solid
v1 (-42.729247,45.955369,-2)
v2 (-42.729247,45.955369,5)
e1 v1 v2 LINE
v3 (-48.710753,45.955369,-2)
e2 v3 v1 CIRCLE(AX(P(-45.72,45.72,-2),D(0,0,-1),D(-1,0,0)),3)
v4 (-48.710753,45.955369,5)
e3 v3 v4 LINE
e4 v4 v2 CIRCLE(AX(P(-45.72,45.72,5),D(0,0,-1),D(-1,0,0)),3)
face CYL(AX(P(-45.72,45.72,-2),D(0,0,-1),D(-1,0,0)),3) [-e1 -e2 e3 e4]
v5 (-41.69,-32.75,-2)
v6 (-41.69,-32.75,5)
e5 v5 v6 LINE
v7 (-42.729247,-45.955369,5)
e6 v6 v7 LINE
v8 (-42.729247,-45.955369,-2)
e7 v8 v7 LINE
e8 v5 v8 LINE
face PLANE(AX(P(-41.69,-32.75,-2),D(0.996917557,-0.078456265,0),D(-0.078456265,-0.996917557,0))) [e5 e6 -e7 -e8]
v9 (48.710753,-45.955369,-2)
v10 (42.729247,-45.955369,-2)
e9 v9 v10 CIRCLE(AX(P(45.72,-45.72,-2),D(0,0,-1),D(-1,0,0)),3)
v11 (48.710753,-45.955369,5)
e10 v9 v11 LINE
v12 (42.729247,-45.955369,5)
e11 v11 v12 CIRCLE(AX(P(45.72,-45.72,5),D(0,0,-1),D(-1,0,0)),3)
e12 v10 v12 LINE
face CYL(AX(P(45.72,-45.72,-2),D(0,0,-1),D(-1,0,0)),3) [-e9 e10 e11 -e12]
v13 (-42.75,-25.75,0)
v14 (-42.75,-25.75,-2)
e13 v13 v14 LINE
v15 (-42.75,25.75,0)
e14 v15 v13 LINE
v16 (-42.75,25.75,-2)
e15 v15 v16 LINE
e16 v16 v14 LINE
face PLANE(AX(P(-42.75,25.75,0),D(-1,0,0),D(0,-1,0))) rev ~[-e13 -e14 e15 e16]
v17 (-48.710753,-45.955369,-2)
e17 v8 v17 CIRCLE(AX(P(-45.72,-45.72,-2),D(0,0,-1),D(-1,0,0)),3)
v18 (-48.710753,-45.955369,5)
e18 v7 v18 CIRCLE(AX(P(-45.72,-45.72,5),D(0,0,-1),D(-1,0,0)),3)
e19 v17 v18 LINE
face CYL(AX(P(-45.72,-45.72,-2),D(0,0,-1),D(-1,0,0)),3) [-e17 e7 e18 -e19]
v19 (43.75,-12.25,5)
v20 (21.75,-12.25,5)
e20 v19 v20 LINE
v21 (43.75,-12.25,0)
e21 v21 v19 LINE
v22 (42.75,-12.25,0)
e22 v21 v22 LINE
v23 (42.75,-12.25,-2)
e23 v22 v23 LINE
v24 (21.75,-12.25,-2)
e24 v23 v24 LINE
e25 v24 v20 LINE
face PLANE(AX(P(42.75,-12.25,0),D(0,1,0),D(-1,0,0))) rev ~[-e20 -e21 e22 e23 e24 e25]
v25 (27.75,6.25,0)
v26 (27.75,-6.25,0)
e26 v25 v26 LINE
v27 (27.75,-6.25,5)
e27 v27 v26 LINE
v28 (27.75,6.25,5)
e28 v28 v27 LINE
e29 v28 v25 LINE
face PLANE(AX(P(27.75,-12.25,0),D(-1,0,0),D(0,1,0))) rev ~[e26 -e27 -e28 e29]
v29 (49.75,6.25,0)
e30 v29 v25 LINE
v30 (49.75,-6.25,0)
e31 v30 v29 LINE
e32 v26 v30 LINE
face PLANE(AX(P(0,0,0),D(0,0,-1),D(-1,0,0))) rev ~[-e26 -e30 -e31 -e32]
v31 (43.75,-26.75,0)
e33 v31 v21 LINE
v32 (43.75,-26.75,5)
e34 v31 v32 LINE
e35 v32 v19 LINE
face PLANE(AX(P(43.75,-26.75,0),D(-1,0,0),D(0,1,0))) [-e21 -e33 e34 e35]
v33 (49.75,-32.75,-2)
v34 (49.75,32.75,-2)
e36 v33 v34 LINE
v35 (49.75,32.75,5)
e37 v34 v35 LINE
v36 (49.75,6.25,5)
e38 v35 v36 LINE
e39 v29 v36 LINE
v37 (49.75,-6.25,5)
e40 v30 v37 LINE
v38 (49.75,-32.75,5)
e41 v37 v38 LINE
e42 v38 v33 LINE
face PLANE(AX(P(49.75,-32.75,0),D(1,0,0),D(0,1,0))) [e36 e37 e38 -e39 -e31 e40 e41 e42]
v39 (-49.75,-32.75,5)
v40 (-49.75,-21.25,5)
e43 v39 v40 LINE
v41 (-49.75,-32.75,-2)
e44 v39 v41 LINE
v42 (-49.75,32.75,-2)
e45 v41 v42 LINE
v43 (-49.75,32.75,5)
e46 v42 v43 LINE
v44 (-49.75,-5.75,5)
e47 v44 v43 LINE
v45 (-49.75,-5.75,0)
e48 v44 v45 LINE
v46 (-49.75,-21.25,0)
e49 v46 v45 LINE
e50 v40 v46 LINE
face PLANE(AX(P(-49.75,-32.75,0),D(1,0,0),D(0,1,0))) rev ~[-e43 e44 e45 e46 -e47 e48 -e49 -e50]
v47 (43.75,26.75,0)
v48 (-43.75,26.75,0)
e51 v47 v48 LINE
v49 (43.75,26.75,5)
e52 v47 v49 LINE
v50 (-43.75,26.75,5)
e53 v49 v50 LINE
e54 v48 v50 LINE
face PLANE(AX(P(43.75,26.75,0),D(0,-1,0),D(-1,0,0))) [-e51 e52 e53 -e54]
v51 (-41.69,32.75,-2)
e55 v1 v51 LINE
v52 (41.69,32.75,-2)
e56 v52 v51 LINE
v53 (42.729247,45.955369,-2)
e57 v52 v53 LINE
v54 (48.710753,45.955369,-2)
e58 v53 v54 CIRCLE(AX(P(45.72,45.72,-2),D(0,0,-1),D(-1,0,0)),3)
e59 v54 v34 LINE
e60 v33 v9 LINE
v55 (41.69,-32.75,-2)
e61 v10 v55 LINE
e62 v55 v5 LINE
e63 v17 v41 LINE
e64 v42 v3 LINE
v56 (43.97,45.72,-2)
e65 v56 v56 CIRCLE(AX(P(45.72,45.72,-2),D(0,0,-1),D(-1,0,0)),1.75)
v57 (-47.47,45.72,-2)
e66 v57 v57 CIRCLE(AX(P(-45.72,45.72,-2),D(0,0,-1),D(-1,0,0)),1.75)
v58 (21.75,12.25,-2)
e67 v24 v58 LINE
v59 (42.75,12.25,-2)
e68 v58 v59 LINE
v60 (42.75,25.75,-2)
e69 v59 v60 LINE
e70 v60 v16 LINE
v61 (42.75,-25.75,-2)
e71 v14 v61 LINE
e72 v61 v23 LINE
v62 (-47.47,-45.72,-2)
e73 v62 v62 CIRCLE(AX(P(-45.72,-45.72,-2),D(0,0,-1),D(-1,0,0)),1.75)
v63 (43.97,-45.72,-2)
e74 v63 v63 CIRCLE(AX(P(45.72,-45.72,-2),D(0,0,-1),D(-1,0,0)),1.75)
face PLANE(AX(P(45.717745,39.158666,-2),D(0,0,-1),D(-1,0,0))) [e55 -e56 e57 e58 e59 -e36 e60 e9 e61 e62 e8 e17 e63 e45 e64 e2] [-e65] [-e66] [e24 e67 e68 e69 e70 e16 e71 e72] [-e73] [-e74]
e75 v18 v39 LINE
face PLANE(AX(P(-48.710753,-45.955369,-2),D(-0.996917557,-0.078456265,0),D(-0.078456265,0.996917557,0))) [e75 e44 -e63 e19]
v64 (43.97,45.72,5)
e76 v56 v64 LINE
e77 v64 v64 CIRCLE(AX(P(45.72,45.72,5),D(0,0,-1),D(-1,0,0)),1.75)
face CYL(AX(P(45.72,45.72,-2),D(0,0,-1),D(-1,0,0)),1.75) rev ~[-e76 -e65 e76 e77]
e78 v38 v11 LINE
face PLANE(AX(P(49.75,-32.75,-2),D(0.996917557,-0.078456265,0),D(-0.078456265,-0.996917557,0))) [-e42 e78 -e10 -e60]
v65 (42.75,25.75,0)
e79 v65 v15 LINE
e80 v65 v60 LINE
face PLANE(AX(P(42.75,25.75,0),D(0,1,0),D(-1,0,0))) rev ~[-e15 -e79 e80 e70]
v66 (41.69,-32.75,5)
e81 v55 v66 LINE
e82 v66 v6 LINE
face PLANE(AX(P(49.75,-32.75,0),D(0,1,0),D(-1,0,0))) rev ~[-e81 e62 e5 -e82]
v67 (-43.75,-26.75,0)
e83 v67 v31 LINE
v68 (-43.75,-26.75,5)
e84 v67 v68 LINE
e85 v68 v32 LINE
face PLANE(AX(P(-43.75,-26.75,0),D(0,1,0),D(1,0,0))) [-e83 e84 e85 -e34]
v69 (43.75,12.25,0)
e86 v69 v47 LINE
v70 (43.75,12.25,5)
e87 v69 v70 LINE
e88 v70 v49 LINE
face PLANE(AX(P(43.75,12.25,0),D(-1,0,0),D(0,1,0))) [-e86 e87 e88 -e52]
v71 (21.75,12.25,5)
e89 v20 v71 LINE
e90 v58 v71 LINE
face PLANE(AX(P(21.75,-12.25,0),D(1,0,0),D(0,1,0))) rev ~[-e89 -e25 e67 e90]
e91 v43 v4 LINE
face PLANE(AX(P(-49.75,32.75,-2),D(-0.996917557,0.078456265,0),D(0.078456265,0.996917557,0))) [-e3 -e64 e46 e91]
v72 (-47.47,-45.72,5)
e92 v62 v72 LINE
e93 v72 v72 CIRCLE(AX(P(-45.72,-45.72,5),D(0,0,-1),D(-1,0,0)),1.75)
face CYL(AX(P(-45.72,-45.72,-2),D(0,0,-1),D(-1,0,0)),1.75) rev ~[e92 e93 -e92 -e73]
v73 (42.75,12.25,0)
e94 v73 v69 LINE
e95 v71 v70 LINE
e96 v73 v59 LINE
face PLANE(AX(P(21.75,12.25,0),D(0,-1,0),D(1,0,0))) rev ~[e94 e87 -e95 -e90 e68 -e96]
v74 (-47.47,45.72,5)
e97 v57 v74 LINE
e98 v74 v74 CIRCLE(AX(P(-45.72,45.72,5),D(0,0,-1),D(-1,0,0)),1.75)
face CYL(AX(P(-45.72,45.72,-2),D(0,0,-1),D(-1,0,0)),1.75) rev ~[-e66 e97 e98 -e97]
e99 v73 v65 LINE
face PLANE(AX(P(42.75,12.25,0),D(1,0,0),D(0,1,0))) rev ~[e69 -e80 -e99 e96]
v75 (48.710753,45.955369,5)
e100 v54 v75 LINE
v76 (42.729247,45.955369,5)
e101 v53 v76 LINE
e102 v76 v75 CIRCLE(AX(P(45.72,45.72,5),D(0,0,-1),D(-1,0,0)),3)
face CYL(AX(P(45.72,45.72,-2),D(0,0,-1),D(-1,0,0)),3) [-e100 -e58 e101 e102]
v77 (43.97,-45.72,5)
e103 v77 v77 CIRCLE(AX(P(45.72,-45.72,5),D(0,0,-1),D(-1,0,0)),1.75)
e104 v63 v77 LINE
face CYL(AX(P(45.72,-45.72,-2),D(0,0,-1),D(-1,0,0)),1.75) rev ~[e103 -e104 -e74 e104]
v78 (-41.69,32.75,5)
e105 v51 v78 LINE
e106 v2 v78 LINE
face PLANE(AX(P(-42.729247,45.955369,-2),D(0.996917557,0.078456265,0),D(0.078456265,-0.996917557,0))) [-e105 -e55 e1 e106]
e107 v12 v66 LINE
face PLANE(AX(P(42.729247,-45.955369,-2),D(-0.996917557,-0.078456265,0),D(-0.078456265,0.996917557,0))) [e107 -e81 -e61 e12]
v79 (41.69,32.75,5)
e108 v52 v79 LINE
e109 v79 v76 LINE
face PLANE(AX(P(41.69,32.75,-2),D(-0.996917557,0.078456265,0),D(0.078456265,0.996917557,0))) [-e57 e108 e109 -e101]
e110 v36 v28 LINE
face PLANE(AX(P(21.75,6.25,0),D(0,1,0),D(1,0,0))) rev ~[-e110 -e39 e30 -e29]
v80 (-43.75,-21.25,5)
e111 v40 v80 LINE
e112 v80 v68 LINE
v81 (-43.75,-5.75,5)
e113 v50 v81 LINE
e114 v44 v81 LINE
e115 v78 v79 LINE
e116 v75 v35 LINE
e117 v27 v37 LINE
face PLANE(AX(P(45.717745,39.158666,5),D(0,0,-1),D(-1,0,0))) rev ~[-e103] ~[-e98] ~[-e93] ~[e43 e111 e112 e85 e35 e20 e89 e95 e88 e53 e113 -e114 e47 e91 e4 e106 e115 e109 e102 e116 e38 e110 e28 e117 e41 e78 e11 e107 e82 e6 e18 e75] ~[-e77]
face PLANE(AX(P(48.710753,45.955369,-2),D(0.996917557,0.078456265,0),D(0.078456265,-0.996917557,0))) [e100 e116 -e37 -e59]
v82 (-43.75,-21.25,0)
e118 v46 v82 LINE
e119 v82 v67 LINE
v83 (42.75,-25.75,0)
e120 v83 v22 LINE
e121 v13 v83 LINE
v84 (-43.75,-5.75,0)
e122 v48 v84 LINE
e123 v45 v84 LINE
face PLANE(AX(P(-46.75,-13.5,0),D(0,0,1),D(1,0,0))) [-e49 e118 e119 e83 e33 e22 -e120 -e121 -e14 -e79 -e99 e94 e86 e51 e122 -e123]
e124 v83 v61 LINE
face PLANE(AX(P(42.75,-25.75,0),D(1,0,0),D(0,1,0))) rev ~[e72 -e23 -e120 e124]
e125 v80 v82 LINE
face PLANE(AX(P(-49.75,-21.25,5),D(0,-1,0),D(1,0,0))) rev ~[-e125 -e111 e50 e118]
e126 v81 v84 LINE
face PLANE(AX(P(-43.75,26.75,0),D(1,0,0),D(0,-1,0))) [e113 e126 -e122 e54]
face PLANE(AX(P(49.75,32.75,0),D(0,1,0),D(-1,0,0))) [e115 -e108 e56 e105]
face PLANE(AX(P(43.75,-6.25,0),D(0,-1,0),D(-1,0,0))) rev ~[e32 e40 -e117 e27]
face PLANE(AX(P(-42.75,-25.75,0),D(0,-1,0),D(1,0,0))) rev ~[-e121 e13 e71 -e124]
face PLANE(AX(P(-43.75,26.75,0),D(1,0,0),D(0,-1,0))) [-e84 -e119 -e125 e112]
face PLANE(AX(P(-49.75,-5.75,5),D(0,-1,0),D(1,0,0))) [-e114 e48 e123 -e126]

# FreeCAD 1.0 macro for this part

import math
import FreeCAD as App
import Part
import Sketcher

V = App.Vector


def faces_at(feature, points):
    """Names of the faces that lie closest to the given points."""
    faces = feature.Shape.Faces
    near = lambda p: min(range(len(faces)), key=lambda i: faces[i].distToShape(Part.Vertex(*p))[0])
    return sorted({f"Face{near(p) + 1}" for p in points})


def add_polygon(sketch, points):
    """Adds a closed chain of lines whose ends are joined by coincident constraints."""
    first, n = sketch.GeometryCount, len(points)
    for a, b in zip(points, points[1:] + points[:1]):
        sketch.addGeometry(Part.LineSegment(App.Vector(*a, 0), App.Vector(*b, 0)), False)
    for i in range(n):
        sketch.addConstraint(Sketcher.Constraint("Coincident", first + i, 2, first + (i + 1) % n, 1))

doc = App.newDocument("Part")
body = doc.addObject("PartDesign::Body", "Body")

# Sketch on XY plane
sketch1 = body.newObject("Sketcher::SketchObject", "Sketch")
sketch1.AttachmentSupport = (doc.getObject("XY_Plane"), [""])
sketch1.MapMode = "FlatFace"
add_polygon(sketch1, [(44, 27), (-44, 27), (-44, -27), (44, -27), (44, -12), (22, -12), (22, 12), (44, 12)])  # lines 0-7
sketch1.addConstraint([
    Sketcher.Constraint("Horizontal", 0),
    Sketcher.Constraint("Vertical", 1),
    Sketcher.Constraint("Horizontal", 2),
    Sketcher.Constraint("Vertical", 3),
    Sketcher.Constraint("Horizontal", 4),
    Sketcher.Constraint("Vertical", 5),
    Sketcher.Constraint("Horizontal", 6),
    Sketcher.Constraint("Vertical", 7),
    Sketcher.Constraint("Symmetric", 0, 2, 2, 2, -1, 1),
    Sketcher.Constraint("Symmetric", 3, 2, 6, 2, -1),
    Sketcher.Constraint("DistanceX", 4, 2, 4, 1, 22.0),
    Sketcher.Constraint("DistanceX", 0, 2, 0, 1, 87.5),
    Sketcher.Constraint("DistanceY", 1, 2, 1, 1, 53.5),
    Sketcher.Constraint("DistanceY", 3, 1, 3, 2, 14.5),
])
pad1 = body.newObject("PartDesign::Pad", "Pad")
pad1.Profile = sketch1
pad1.Length = 5
doc.recompute()

thickness = body.newObject("PartDesign::Thickness", "Thickness")
thickness.Base = (pad1, faces_at(pad1, [(0, 0, 0), (0, 0, 5)]))
thickness.Value = 6
thickness.Reversed = False
thickness.Join = "Intersection"

# Sketch on XY plane
sketch2 = body.newObject("Sketcher::SketchObject", "Sketch001")
sketch2.AttachmentSupport = (doc.getObject("XY_Plane"), [""])
sketch2.MapMode = "FlatFace"
add_polygon(sketch2, [(50, 33), (50, -33), (-50, -33), (-50, 33)])  # lines 0-3
add_polygon(sketch2, [(22, 12), (43, 12), (43, 26), (-43, 26), (-43, -26), (43, -26), (43, -12), (22, -12)])  # lines 4-11
sketch2.addConstraint([
    Sketcher.Constraint("Vertical", 0),
    Sketcher.Constraint("Horizontal", 1),
    Sketcher.Constraint("Vertical", 2),
    Sketcher.Constraint("Horizontal", 3),
    Sketcher.Constraint("Horizontal", 4),
    Sketcher.Constraint("Vertical", 5),
    Sketcher.Constraint("Horizontal", 6),
    Sketcher.Constraint("Vertical", 7),
    Sketcher.Constraint("Horizontal", 8),
    Sketcher.Constraint("Vertical", 9),
    Sketcher.Constraint("Horizontal", 10),
    Sketcher.Constraint("Vertical", 11),
    Sketcher.Constraint("Symmetric", 0, 2, 2, 2, -1, 1),
    Sketcher.Constraint("Symmetric", 5, 2, 7, 2, -1, 1),
    Sketcher.Constraint("Symmetric", 4, 2, 9, 2, -1),
    Sketcher.Constraint("DistanceX", 4, 1, 4, 2, 21.0),
    Sketcher.Constraint("DistanceX", 1, 2, 1, 1, 99.5),
    Sketcher.Constraint("DistanceX", 6, 2, 6, 1, 85.5),
    Sketcher.Constraint("DistanceY", 0, 2, 0, 1, 65.5),
    Sketcher.Constraint("DistanceY", 5, 1, 5, 2, 13.5),
    Sketcher.Constraint("DistanceY", 7, 2, 7, 1, 51.5),
])
pad2 = body.newObject("PartDesign::Pad", "Pad001")
pad2.Profile = sketch2
pad2.Length = 2
pad2.Reversed = True

# Sketch on XY plane
sketch3 = body.newObject("Sketcher::SketchObject", "Sketch002")
sketch3.AttachmentSupport = (doc.getObject("XY_Plane"), [""])
sketch3.MapMode = "FlatFace"
sketch3.AttachmentOffset = App.Placement(V(0, 0, 5), App.Rotation())
add_polygon(sketch3, [(-50, -6), (-50, -21), (-44, -21), (-44, -6)])  # lines 0-3
sketch3.addConstraint([
    Sketcher.Constraint("Vertical", 0),
    Sketcher.Constraint("Horizontal", 1),
    Sketcher.Constraint("Vertical", 2),
    Sketcher.Constraint("Horizontal", 3),
    Sketcher.Constraint("DistanceX", 1, 1, 1, 2, 6.0),
    Sketcher.Constraint("DistanceY", 0, 2, 0, 1, 15.5),
    Sketcher.Constraint("DistanceX", 0, 2, -1, 1, 49.75),
    Sketcher.Constraint("DistanceY", 0, 2, -1, 1, 21.25),
])
pocket1 = body.newObject("PartDesign::Pocket", "Pocket")
pocket1.Profile = sketch3
pocket1.Length = 5
body2 = doc.addObject("PartDesign::Body", "Body001")

# Sketch on XY plane
sketch4 = body2.newObject("Sketcher::SketchObject", "Sketch003")
sketch4.AttachmentSupport = (doc.getObject("XY_Plane001"), [""])
sketch4.MapMode = "FlatFace"
sketch4.AttachmentOffset = App.Placement(V(0, 0, -2), App.Rotation())
sketch4.addGeometry([
    Part.Circle(V(45.7, 45.7, 0), V(0, 0, 1), 3),
    Part.Circle(V(45.7, 45.7, 0), V(0, 0, 1), 1.8),
], False)
sketch4.addConstraint([
    Sketcher.Constraint("Coincident", 1, 3, 0, 3),
    Sketcher.Constraint("Diameter", 0, 6.0),
    Sketcher.Constraint("Diameter", 1, 3.5),
    Sketcher.Constraint("DistanceX", -1, 1, 0, 3, 45.72),
    Sketcher.Constraint("DistanceY", -1, 1, 0, 3, 45.72),
])
pad3 = body2.newObject("PartDesign::Pad", "Pad002")
pad3.Profile = sketch4
pad3.Length = 7
body3 = doc.addObject("PartDesign::Body", "Body002")

# Sketch on XY plane
sketch5 = body3.newObject("Sketcher::SketchObject", "Sketch004")
sketch5.AttachmentSupport = (doc.getObject("XY_Plane002"), [""])
sketch5.MapMode = "FlatFace"
sketch5.AttachmentOffset = App.Placement(V(0, 0, -2), App.Rotation())
sketch5.addGeometry([
    Part.Circle(V(-45.7, 45.7, 0), V(0, 0, 1), 3),
    Part.Circle(V(-45.7, 45.7, 0), V(0, 0, 1), 1.8),
], False)
sketch5.addConstraint([
    Sketcher.Constraint("Coincident", 1, 3, 0, 3),
    Sketcher.Constraint("Diameter", 0, 6.0),
    Sketcher.Constraint("Diameter", 1, 3.5),
    Sketcher.Constraint("DistanceX", 0, 3, -1, 1, 45.72),
    Sketcher.Constraint("DistanceY", -1, 1, 0, 3, 45.72),
])
pad4 = body3.newObject("PartDesign::Pad", "Pad003")
pad4.Profile = sketch5
pad4.Length = 7
body4 = doc.addObject("PartDesign::Body", "Body003")

# Sketch on XY plane
sketch6 = body4.newObject("Sketcher::SketchObject", "Sketch005")
sketch6.AttachmentSupport = (doc.getObject("XY_Plane003"), [""])
sketch6.MapMode = "FlatFace"
sketch6.AttachmentOffset = App.Placement(V(0, 0, -2), App.Rotation())
sketch6.addGeometry([
    Part.Circle(V(-45.7, -45.7, 0), V(0, 0, 1), 3),
    Part.Circle(V(-45.7, -45.7, 0), V(0, 0, 1), 1.8),
], False)
sketch6.addConstraint([
    Sketcher.Constraint("Coincident", 1, 3, 0, 3),
    Sketcher.Constraint("Diameter", 0, 6.0),
    Sketcher.Constraint("Diameter", 1, 3.5),
    Sketcher.Constraint("DistanceX", 0, 3, -1, 1, 45.72),
    Sketcher.Constraint("DistanceY", 0, 3, -1, 1, 45.72),
])
pad5 = body4.newObject("PartDesign::Pad", "Pad004")
pad5.Profile = sketch6
pad5.Length = 7
body5 = doc.addObject("PartDesign::Body", "Body004")

# Sketch on XY plane
sketch7 = body5.newObject("Sketcher::SketchObject", "Sketch006")
sketch7.AttachmentSupport = (doc.getObject("XY_Plane004"), [""])
sketch7.MapMode = "FlatFace"
sketch7.AttachmentOffset = App.Placement(V(0, 0, -2), App.Rotation())
sketch7.addGeometry([
    Part.Circle(V(45.7, -45.7, 0), V(0, 0, 1), 3),
    Part.Circle(V(45.7, -45.7, 0), V(0, 0, 1), 1.8),
], False)
sketch7.addConstraint([
    Sketcher.Constraint("Coincident", 1, 3, 0, 3),
    Sketcher.Constraint("Diameter", 0, 6.0),
    Sketcher.Constraint("Diameter", 1, 3.5),
    Sketcher.Constraint("DistanceX", -1, 1, 0, 3, 45.72),
    Sketcher.Constraint("DistanceY", 0, 3, -1, 1, 45.72),
])
pad6 = body5.newObject("PartDesign::Pad", "Pad005")
pad6.Profile = sketch7
pad6.Length = 7
body.AllowCompound = True
doc.recompute()

boolean = body.newObject("PartDesign::Boolean", "Boolean")
boolean.Type = "Fuse"
boolean.addObjects([body2])
doc.recompute()

boolean2 = body.newObject("PartDesign::Boolean", "Boolean001")
boolean2.Type = "Fuse"
boolean2.addObjects([body3])
doc.recompute()

boolean3 = body.newObject("PartDesign::Boolean", "Boolean002")
boolean3.Type = "Fuse"
boolean3.addObjects([body4])
doc.recompute()

boolean4 = body.newObject("PartDesign::Boolean", "Boolean003")
boolean4.Type = "Fuse"
boolean4.addObjects([body5])

# Sketch on XY plane
sketch8 = body.newObject("Sketcher::SketchObject", "Sketch007")
sketch8.AttachmentSupport = (doc.getObject("XY_Plane"), [""])
sketch8.MapMode = "FlatFace"
sketch8.AttachmentOffset = App.Placement(V(0, 0, -2), App.Rotation())
sketch8.addGeometry([
    Part.LineSegment(V(48.71, 45.96, 0), V(49.75, 32.75, 0)),  # 0
    Part.LineSegment(V(49.75, 32.75, 0), V(41.69, 32.75, 0)),  # 1
    Part.LineSegment(V(41.69, 32.75, 0), V(42.73, 45.96, 0)),  # 2
    Part.ArcOfCircle(Part.Circle(V(45.72, 45.72, 0), V(0, 0, 1), 3), math.radians(175.5), math.radians(180)),  # 3
    Part.ArcOfCircle(Part.Circle(V(45.72, 45.72, 0), V(0, 0, 1), 3), math.radians(180), math.radians(364)),  # 4
    Part.LineSegment(V(-42.73, 45.96, 0), V(-41.69, 32.75, 0)),  # 5
    Part.LineSegment(V(-41.69, 32.75, 0), V(-49.75, 32.75, 0)),  # 6
    Part.LineSegment(V(-49.75, 32.75, 0), V(-48.71, 45.96, 0)),  # 7
    Part.ArcOfCircle(Part.Circle(V(-45.72, 45.72, 0), V(0, 0, 1), 3), math.radians(175.5), math.radians(180)),  # 8
    Part.ArcOfCircle(Part.Circle(V(-45.72, 45.72, 0), V(0, 0, 1), 3), math.radians(180), math.radians(364)),  # 9
    Part.LineSegment(V(-49.75, -32.75, 0), V(-41.69, -32.75, 0)),  # 10
    Part.LineSegment(V(-41.69, -32.75, 0), V(-42.73, -45.96, 0)),  # 11
    Part.ArcOfCircle(Part.Circle(V(-45.72, -45.72, 0), V(0, 0, 1), 3), math.radians(-4), math.radians(180)),  # 12
    Part.ArcOfCircle(Part.Circle(V(-45.72, -45.72, 0), V(0, 0, 1), 3), math.radians(-180), math.radians(-175.5)),  # 13
    Part.LineSegment(V(-48.71, -45.96, 0), V(-49.75, -32.75, 0)),  # 14
    Part.LineSegment(V(42.73, -45.96, 0), V(41.69, -32.75, 0)),  # 15
    Part.LineSegment(V(41.69, -32.75, 0), V(49.75, -32.75, 0)),  # 16
    Part.LineSegment(V(49.75, -32.75, 0), V(48.71, -45.96, 0)),  # 17
    Part.ArcOfCircle(Part.Circle(V(45.72, -45.72, 0), V(0, 0, 1), 3), math.radians(-4), math.radians(180)),  # 18
    Part.ArcOfCircle(Part.Circle(V(45.72, -45.72, 0), V(0, 0, 1), 3), math.radians(-180), math.radians(-175.5)),  # 19
], False)
sketch8.addConstraint([
    Sketcher.Constraint("Coincident", 0, 2, 1, 1),
    Sketcher.Constraint("Coincident", 1, 2, 2, 1),
    Sketcher.Constraint("Tangent", 2, 2, 3, 1),
    Sketcher.Constraint("Tangent", 3, 2, 4, 1),
    Sketcher.Constraint("Tangent", 4, 2, 0, 1),
    Sketcher.Constraint("Coincident", 5, 2, 6, 1),
    Sketcher.Constraint("Coincident", 6, 2, 7, 1),
    Sketcher.Constraint("Tangent", 7, 2, 8, 1),
    Sketcher.Constraint("Tangent", 8, 2, 9, 1),
    Sketcher.Constraint("Tangent", 9, 2, 5, 1),
    Sketcher.Constraint("Coincident", 10, 2, 11, 1),
    Sketcher.Constraint("Tangent", 11, 2, 12, 1),
    Sketcher.Constraint("Tangent", 12, 2, 13, 1),
    Sketcher.Constraint("Tangent", 13, 2, 14, 1),
    Sketcher.Constraint("Coincident", 14, 2, 10, 1),
    Sketcher.Constraint("Coincident", 15, 2, 16, 1),
    Sketcher.Constraint("Coincident", 16, 2, 17, 1),
    Sketcher.Constraint("Tangent", 17, 2, 18, 1),
    Sketcher.Constraint("Tangent", 18, 2, 19, 1),
    Sketcher.Constraint("Tangent", 19, 2, 15, 1),
    Sketcher.Constraint("Horizontal", 1),
    Sketcher.Constraint("Horizontal", 6),
    Sketcher.Constraint("Horizontal", 10),
    Sketcher.Constraint("Horizontal", 16),
    Sketcher.Constraint("Equal", 3, 4),
    Sketcher.Constraint("Equal", 4, 8),
    Sketcher.Constraint("Equal", 8, 9),
    Sketcher.Constraint("Equal", 9, 12),
    Sketcher.Constraint("Equal", 12, 13),
    Sketcher.Constraint("Equal", 13, 18),
    Sketcher.Constraint("Equal", 18, 19),
    Sketcher.Constraint("Symmetric", 3, 3, 12, 3, -1, 1),
    Sketcher.Constraint("Symmetric", 8, 3, 18, 3, -1, 1),
    Sketcher.Constraint("Symmetric", 1, 2, 10, 2, -1, 1),
    Sketcher.Constraint("Symmetric", 5, 2, 15, 2, -1, 1),
    Sketcher.Constraint("Symmetric", 3, 3, 8, 3, -2),
    Sketcher.Constraint("Symmetric", 1, 2, 5, 2, -2),
    Sketcher.Constraint("Parallel", 0, 5),
    Sketcher.Constraint("Parallel", 2, 7),
    Sketcher.Constraint("Parallel", 5, 14),
    Sketcher.Constraint("Parallel", 11, 17),
    Sketcher.Constraint("Horizontal", 9, 3, 3, 2),
    Sketcher.Constraint("Horizontal", 3, 2, 8, 2),
    Sketcher.Constraint("Horizontal", 19, 3, 12, 2),
    Sketcher.Constraint("Horizontal", 12, 2, 18, 2),
    Sketcher.Constraint("Radius", 3, 3.0),
    Sketcher.Constraint("DistanceX", 1, 2, 1, 1, 8.06),
    Sketcher.Constraint("DistanceY", 10, 2, 5, 2, 65.5),
    Sketcher.Constraint("DistanceX", -1, 1, 3, 3, 45.72),
    Sketcher.Constraint("DistanceY", -1, 1, 3, 3, 45.72),
])
pad7 = body.newObject("PartDesign::Pad", "Pad006")
pad7.Profile = sketch8
pad7.Length = 7

doc.recompute()
